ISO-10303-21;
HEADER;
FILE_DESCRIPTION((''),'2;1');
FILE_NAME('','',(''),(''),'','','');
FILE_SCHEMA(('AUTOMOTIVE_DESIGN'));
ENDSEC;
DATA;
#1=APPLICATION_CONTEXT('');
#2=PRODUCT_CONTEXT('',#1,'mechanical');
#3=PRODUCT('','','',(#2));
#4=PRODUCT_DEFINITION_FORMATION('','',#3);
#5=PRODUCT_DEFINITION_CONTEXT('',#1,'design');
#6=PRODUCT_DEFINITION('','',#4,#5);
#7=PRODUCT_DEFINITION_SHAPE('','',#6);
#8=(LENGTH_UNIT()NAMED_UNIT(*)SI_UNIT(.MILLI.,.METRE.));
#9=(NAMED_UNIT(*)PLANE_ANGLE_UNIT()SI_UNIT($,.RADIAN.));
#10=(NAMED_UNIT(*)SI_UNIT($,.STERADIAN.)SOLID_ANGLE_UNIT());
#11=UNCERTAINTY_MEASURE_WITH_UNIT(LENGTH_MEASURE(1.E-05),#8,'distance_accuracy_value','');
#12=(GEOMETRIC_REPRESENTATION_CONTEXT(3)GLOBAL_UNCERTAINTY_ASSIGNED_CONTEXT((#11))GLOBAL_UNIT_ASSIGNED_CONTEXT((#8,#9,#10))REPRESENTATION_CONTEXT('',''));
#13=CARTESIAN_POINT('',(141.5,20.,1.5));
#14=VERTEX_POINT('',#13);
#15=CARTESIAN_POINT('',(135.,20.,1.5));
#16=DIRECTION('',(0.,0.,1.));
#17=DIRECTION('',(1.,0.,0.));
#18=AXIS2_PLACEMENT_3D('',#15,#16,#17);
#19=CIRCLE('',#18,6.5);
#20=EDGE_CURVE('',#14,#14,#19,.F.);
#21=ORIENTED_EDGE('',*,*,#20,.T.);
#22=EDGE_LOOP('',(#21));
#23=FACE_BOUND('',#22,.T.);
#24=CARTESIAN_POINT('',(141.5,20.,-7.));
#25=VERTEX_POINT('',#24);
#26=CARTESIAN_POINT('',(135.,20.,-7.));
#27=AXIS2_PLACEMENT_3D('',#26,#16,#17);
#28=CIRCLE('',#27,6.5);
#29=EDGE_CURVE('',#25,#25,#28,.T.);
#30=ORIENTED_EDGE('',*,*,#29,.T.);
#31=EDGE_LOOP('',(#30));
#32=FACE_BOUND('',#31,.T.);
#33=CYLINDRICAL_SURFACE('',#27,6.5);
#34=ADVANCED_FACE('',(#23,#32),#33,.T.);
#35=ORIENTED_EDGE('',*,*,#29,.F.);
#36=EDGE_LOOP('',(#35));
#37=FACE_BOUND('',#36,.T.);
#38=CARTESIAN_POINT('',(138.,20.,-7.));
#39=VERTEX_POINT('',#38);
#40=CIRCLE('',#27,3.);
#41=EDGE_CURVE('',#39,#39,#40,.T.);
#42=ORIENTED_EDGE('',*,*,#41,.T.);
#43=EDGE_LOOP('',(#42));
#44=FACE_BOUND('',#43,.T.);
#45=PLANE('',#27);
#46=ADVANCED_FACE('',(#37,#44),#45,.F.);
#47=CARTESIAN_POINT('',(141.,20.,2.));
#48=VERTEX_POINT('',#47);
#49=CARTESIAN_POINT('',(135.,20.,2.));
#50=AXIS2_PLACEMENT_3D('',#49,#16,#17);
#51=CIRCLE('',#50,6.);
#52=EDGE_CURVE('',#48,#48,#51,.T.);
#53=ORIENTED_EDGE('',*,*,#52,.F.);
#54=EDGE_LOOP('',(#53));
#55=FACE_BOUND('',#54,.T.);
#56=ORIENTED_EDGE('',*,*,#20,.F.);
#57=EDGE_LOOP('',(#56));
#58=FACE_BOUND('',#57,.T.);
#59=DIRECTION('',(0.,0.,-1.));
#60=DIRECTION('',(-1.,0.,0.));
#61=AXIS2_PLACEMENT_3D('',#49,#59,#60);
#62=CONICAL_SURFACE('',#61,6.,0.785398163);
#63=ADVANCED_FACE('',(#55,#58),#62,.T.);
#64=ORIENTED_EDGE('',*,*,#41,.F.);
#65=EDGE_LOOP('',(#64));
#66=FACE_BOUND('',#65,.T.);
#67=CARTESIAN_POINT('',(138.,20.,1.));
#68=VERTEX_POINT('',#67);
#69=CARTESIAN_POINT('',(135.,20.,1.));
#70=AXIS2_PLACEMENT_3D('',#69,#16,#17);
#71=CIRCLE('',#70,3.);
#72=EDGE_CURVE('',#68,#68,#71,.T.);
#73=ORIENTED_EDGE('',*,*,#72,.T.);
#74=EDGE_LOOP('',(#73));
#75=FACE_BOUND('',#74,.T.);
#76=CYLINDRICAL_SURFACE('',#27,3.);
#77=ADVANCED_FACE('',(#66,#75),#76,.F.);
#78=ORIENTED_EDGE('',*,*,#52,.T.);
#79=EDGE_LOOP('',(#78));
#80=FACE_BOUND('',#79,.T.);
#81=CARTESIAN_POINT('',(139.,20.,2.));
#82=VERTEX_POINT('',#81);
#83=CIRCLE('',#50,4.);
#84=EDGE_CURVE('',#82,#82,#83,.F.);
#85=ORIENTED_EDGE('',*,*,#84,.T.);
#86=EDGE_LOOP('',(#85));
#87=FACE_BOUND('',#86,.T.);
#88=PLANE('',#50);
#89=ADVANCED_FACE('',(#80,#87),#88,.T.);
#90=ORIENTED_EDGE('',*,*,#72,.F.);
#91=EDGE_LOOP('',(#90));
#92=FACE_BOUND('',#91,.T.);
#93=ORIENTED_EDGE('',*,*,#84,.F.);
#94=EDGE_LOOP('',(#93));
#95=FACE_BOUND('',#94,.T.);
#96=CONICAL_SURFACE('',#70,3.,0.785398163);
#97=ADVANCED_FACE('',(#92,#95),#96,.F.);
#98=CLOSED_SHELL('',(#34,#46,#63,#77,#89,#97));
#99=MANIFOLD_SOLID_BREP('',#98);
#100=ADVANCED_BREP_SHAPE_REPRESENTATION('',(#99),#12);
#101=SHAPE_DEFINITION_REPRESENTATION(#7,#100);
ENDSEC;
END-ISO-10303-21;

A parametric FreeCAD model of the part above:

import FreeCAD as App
import Part
import Sketcher

V = App.Vector
Q = App.Units.Quantity


def edges_at(feature, points):
    """Names of the edges that pass closest to the given points."""
    edges = feature.Shape.Edges
    near = lambda p: min(range(len(edges)), key=lambda i: edges[i].distToShape(Part.Vertex(*p))[0])
    return sorted({f"Edge{near(p) + 1}" for p in points})

doc = App.newDocument("Part")
body = doc.addObject("PartDesign::Body", "Body")

sketch1 = doc.addObject("Sketcher::SketchObject", "Sketch")
body.addObject(sketch1)
sketch1.AttachmentSupport = (doc.XY_Plane, [""])
sketch1.MapMode = "FlatFace"
sketch1.addGeometry([
    Part.Circle(V(135, 20, 0), V(0, 0, 1), 6.5),
    Part.Circle(V(135, 20, 0), V(0, 0, 1), 3),
], False)
sketch1.addConstraint([
    Sketcher.Constraint("Coincident", 1, 3, 0, 3),
    Sketcher.Constraint("Diameter", 0, Q("13 mm")),
    Sketcher.Constraint("Diameter", 1, Q("6 mm")),
    Sketcher.Constraint("DistanceX", -1, 1, 0, 3, Q("135 mm")),
    Sketcher.Constraint("DistanceY", -1, 1, 0, 3, Q("20 mm")),
])
pad1 = doc.addObject("PartDesign::Pad", "Pad")
body.addObject(pad1)
pad1.Profile = sketch1
pad1.Type = "TwoLengths"
pad1.Length = 2
pad1.Length2 = 7
doc.recompute()

chamfer = doc.addObject("PartDesign::Chamfer", "Chamfer")
body.addObject(chamfer)
chamfer.Base = (pad1, edges_at(pad1, [(132, 20, 2)]))
chamfer.Size = 1
doc.recompute()

chamfer2 = doc.addObject("PartDesign::Chamfer", "Chamfer001")
body.addObject(chamfer2)
chamfer2.Base = (chamfer, edges_at(chamfer, [(128.5, 20, 2)]))
chamfer2.Size = 0.5

doc.recompute()
